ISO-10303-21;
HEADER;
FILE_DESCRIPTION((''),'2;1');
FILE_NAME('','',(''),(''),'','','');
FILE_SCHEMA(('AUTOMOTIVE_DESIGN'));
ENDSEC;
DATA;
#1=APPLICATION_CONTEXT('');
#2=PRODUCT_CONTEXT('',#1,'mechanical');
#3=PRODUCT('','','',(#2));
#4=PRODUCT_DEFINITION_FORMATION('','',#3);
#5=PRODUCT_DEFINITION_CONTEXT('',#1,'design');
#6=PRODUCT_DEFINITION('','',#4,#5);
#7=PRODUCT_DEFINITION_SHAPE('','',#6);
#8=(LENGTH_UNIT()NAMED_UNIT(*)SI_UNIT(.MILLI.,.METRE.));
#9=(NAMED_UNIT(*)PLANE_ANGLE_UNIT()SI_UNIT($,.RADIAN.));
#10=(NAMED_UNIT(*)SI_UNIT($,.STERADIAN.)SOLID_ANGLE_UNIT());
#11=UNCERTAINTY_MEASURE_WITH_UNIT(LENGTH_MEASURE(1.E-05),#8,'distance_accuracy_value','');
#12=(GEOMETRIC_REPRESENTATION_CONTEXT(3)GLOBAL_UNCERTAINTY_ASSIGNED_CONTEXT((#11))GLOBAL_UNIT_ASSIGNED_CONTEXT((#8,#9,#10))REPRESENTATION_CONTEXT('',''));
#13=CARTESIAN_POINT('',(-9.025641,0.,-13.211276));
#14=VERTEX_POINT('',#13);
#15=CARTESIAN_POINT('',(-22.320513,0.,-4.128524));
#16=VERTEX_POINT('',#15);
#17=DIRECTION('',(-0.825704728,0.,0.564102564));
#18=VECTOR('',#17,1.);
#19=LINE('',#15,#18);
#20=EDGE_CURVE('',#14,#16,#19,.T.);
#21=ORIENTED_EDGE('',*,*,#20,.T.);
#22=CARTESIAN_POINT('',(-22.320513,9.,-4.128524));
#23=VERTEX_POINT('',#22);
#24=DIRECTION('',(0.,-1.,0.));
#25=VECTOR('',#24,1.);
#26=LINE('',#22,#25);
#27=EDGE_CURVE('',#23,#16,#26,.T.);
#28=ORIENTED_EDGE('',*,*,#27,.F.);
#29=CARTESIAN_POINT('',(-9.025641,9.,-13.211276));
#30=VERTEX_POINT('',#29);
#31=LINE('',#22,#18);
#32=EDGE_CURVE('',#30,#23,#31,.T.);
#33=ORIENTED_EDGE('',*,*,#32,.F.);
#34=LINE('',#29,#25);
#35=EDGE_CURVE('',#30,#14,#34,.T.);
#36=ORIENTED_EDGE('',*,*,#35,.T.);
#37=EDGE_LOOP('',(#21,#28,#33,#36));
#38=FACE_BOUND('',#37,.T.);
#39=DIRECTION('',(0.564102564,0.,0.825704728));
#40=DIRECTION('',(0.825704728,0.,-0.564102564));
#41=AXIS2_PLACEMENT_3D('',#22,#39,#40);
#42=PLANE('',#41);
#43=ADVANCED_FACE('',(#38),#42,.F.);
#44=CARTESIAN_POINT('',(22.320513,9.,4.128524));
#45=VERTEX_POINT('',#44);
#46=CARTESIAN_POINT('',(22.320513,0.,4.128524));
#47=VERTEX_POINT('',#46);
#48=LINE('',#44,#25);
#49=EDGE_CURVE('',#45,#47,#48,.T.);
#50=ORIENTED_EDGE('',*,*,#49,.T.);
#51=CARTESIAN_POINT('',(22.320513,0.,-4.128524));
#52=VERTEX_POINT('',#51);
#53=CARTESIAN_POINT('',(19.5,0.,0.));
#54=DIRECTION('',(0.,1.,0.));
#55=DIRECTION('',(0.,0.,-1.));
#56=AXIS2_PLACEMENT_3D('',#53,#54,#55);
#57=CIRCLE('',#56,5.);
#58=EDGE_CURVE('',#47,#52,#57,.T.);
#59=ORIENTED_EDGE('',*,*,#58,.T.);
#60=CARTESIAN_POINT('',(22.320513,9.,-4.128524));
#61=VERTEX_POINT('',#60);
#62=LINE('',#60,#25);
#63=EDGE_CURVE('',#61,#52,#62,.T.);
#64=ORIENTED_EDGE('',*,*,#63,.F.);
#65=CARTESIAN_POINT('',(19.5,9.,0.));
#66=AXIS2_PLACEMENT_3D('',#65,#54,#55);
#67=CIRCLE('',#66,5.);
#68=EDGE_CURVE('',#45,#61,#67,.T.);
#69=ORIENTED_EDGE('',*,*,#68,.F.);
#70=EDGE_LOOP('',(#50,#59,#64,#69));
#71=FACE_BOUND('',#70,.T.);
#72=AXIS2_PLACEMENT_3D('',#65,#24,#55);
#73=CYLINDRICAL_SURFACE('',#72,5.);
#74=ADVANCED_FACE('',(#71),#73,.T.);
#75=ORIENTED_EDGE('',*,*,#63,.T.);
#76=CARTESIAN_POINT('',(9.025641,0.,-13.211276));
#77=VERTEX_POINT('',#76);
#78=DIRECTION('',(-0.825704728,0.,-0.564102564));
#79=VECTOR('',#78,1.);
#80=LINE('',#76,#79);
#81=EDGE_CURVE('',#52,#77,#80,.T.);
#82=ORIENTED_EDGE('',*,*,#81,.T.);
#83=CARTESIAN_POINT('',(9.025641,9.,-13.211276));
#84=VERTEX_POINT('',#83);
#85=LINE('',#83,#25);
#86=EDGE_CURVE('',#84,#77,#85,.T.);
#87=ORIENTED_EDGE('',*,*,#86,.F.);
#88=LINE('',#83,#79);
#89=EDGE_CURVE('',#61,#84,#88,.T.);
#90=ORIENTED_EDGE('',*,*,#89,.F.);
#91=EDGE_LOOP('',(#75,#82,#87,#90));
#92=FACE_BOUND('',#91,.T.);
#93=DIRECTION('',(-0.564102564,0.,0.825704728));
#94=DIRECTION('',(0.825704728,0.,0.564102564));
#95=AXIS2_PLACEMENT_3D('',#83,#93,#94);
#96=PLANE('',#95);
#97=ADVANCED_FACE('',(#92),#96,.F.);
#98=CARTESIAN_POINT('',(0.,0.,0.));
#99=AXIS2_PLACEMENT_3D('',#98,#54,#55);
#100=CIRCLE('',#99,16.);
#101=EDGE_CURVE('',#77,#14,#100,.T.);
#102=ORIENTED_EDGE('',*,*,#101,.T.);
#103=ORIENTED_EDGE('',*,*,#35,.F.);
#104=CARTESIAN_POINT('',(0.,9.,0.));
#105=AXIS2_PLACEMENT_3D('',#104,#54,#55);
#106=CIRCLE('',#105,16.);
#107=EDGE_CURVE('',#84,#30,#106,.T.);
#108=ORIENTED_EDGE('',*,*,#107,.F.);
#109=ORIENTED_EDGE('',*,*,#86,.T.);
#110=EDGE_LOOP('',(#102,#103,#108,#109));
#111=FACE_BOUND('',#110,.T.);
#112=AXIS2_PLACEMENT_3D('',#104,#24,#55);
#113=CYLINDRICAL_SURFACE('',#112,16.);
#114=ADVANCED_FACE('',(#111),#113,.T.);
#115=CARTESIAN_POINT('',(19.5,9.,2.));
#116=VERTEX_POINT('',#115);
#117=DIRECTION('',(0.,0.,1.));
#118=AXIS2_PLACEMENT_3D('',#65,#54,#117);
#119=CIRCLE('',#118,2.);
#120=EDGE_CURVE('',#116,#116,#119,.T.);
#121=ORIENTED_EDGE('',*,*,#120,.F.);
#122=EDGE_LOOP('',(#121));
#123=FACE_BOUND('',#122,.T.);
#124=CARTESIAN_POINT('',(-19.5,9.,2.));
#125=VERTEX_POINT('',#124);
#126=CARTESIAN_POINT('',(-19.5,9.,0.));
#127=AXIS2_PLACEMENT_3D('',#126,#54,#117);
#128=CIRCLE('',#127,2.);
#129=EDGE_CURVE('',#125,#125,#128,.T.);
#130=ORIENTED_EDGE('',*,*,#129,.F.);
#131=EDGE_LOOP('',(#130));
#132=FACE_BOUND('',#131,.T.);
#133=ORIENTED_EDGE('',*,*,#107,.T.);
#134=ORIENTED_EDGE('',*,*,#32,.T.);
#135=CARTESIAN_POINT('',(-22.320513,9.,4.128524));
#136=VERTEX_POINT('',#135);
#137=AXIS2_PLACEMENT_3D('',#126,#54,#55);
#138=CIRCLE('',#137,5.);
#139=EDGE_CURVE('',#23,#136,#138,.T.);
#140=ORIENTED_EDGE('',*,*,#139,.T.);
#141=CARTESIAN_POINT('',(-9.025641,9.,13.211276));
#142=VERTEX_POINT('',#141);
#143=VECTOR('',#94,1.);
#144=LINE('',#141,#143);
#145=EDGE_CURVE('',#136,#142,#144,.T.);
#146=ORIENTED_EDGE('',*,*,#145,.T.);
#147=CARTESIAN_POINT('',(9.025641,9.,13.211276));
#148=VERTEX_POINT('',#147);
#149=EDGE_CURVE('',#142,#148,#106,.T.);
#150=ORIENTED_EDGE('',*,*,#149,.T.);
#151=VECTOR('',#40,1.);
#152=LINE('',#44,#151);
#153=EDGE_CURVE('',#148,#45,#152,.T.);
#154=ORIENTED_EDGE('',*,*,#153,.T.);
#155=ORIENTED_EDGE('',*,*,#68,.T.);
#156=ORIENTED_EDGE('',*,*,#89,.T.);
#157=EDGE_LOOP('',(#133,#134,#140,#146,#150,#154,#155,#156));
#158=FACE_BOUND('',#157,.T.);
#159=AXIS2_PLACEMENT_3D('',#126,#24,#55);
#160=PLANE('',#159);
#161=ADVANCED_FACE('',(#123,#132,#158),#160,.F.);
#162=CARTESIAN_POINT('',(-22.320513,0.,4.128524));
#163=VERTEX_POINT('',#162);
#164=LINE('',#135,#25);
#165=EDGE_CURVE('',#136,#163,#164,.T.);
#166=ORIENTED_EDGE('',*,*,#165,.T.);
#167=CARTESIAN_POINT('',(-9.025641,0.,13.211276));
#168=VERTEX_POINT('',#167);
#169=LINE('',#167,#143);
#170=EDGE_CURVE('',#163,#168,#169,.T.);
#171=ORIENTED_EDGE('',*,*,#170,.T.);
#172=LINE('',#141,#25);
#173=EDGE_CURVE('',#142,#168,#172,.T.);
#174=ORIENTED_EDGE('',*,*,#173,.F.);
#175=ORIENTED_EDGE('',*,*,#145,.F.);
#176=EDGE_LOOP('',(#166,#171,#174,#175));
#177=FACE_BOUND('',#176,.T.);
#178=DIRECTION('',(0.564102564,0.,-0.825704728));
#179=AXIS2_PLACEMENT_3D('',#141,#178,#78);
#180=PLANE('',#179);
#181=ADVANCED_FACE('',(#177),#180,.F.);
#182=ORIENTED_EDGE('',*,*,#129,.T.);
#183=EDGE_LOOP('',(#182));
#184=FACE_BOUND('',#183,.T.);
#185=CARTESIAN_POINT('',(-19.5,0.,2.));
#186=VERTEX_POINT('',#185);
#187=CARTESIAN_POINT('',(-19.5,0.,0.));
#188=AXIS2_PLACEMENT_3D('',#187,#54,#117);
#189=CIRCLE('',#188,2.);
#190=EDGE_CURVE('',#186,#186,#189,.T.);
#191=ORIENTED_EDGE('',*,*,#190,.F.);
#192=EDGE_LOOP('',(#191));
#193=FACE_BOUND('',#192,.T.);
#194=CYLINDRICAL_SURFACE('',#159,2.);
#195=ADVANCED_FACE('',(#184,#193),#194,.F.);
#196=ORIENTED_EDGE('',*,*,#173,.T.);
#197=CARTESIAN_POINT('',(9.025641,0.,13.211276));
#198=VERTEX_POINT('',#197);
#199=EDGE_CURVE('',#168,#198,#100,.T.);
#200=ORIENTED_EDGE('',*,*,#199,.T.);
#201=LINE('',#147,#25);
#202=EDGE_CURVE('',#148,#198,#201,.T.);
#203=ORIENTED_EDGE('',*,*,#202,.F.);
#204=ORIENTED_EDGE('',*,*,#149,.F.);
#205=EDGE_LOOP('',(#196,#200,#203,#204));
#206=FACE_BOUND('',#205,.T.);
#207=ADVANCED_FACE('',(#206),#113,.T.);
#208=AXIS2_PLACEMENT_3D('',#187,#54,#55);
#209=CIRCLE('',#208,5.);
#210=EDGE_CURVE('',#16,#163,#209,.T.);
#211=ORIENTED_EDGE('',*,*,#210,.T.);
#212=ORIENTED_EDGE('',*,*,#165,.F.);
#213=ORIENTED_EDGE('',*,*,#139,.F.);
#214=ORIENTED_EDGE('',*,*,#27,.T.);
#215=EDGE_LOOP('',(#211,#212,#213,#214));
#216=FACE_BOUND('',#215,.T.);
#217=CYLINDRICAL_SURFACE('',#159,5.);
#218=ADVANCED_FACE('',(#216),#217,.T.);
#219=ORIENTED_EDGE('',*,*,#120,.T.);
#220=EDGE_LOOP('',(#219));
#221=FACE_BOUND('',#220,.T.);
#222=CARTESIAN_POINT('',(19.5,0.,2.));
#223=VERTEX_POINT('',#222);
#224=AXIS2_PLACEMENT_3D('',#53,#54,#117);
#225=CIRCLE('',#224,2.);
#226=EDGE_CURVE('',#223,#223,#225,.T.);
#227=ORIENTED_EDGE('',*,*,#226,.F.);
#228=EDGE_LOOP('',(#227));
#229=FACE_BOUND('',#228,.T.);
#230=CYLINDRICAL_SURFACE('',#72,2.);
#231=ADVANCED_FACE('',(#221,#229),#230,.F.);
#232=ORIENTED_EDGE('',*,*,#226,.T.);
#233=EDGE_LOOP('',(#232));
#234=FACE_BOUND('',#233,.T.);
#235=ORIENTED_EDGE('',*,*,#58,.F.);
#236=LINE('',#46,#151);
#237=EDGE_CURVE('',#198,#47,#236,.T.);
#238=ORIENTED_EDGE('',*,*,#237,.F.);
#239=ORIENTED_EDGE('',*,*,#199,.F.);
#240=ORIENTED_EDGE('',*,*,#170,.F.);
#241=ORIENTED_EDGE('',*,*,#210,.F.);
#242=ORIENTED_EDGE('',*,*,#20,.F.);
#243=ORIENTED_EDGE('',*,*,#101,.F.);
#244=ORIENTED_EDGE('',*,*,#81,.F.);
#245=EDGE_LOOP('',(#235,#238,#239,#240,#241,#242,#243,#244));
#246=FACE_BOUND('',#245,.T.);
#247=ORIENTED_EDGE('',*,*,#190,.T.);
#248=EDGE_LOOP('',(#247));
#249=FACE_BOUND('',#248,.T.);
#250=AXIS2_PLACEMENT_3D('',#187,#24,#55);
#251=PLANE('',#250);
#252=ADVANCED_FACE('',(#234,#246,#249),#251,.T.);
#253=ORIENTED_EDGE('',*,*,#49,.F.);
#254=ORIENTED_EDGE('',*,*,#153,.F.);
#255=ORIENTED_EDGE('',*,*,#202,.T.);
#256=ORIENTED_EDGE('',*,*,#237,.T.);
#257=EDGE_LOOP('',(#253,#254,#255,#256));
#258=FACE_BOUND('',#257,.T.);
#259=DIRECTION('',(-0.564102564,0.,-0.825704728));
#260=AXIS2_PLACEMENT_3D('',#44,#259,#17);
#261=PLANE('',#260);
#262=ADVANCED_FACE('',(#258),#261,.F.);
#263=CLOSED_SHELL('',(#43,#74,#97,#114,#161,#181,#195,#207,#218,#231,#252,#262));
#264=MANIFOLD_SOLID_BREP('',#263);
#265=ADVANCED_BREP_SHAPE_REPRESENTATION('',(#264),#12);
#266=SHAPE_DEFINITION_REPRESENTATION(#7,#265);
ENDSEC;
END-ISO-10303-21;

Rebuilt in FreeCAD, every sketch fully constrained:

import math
import FreeCAD as App
import Part
import Sketcher
Q = App.Units.Quantity

doc = App.newDocument("Part")
params = doc.addObject("Spreadsheet::Sheet", "Params")
for row, (alias, value) in enumerate([
    ("sketch1_diameter", "4 mm"),
    ("sketch1_radius", "5 mm"),
    ("sketch1_radius2", "16 mm"),
    ("pad1_length", "9 mm"),
], start=1):
    params.set(f"A{row}", alias)
    params.set(f"B{row}", "=" + value)
    params.setAlias(f"B{row}", alias)

body = doc.addObject("PartDesign::Body", "Body")

sketch1 = body.newObject("Sketcher::SketchObject", "Sketch")
sketch1.AttachmentSupport = (doc.getObject("XZ_Plane"), [""])
sketch1.MapMode = "FlatFace"
sketch1.addGeometry([
    Part.LineSegment(App.Vector(-9.025641, -13.211276, 0), App.Vector(-22.320513, -4.128524, 0)),
    Part.ArcOfCircle(Part.Circle(App.Vector(-19.5, 0, 0), App.Vector(0, 0, 1), 5), math.radians(124.339995), math.radians(235.660005)),
    Part.LineSegment(App.Vector(-22.320513, 4.128524, 0), App.Vector(-9.025641, 13.211276, 0)),
    Part.ArcOfCircle(Part.Circle(App.Vector(0, 0, 0), App.Vector(0, 0, 1), 16), math.radians(55.660005), math.radians(124.339995)),
    Part.LineSegment(App.Vector(9.025641, 13.211276, 0), App.Vector(22.320513, 4.128524, 0)),
    Part.ArcOfCircle(Part.Circle(App.Vector(19.5, 0, 0), App.Vector(0, 0, 1), 5), math.radians(-55.660005), math.radians(55.660005)),
    Part.LineSegment(App.Vector(22.320513, -4.128524, 0), App.Vector(9.025641, -13.211276, 0)),
    Part.ArcOfCircle(Part.Circle(App.Vector(0, 0, 0), App.Vector(0, 0, 1), 16), math.radians(-124.339995), math.radians(-55.660005)),
    Part.Circle(App.Vector(19.5, 0, 0), App.Vector(0, 0, 1), 2),
    Part.Circle(App.Vector(-19.5, 0, 0), App.Vector(0, 0, 1), 2),
], False)
sketch1.addConstraint([
    Sketcher.Constraint("Tangent", 0, 2, 1, 2),
    Sketcher.Constraint("Tangent", 1, 1, 2, 1),
    Sketcher.Constraint("Tangent", 2, 2, 3, 2),
    Sketcher.Constraint("Tangent", 3, 1, 4, 1),
    Sketcher.Constraint("Tangent", 4, 2, 5, 2),
    Sketcher.Constraint("Tangent", 5, 1, 6, 1),
    Sketcher.Constraint("Tangent", 6, 2, 7, 2),
    Sketcher.Constraint("Tangent", 7, 1, 0, 1),
    Sketcher.Constraint("Coincident", 3, 3, -1, 1),
    Sketcher.Constraint("Coincident", 7, 3, -1, 1),
    Sketcher.Constraint("Coincident", 8, 3, 5, 3),
    Sketcher.Constraint("Coincident", 9, 3, 1, 3),
    Sketcher.Constraint("Equal", 1, 5),
    Sketcher.Constraint("Equal", 3, 7),
    Sketcher.Constraint("Equal", 8, 9),
    Sketcher.Constraint("Symmetric", 1, 3, 5, 3, -1, 1),
    Sketcher.Constraint("PointOnObject", 1, 3, -1),
    Sketcher.Constraint("Diameter", 8, Q("4 mm")),
    Sketcher.Constraint("Radius", 1, Q("5 mm")),
    Sketcher.Constraint("Radius", 3, Q("16 mm")),
    Sketcher.Constraint("DistanceX", 1, 3, 5, 3, Q("39 mm")),
])
sketch1.setExpression("Constraints[17]", "Params.sketch1_diameter")
sketch1.setExpression("Constraints[18]", "Params.sketch1_radius")
sketch1.setExpression("Constraints[19]", "Params.sketch1_radius2")
pad1 = body.newObject("PartDesign::Pad", "Pad")
pad1.Profile = sketch1
pad1.setExpression("Length", "Params.pad1_length")
pad1.Reversed = True

doc.recompute()
